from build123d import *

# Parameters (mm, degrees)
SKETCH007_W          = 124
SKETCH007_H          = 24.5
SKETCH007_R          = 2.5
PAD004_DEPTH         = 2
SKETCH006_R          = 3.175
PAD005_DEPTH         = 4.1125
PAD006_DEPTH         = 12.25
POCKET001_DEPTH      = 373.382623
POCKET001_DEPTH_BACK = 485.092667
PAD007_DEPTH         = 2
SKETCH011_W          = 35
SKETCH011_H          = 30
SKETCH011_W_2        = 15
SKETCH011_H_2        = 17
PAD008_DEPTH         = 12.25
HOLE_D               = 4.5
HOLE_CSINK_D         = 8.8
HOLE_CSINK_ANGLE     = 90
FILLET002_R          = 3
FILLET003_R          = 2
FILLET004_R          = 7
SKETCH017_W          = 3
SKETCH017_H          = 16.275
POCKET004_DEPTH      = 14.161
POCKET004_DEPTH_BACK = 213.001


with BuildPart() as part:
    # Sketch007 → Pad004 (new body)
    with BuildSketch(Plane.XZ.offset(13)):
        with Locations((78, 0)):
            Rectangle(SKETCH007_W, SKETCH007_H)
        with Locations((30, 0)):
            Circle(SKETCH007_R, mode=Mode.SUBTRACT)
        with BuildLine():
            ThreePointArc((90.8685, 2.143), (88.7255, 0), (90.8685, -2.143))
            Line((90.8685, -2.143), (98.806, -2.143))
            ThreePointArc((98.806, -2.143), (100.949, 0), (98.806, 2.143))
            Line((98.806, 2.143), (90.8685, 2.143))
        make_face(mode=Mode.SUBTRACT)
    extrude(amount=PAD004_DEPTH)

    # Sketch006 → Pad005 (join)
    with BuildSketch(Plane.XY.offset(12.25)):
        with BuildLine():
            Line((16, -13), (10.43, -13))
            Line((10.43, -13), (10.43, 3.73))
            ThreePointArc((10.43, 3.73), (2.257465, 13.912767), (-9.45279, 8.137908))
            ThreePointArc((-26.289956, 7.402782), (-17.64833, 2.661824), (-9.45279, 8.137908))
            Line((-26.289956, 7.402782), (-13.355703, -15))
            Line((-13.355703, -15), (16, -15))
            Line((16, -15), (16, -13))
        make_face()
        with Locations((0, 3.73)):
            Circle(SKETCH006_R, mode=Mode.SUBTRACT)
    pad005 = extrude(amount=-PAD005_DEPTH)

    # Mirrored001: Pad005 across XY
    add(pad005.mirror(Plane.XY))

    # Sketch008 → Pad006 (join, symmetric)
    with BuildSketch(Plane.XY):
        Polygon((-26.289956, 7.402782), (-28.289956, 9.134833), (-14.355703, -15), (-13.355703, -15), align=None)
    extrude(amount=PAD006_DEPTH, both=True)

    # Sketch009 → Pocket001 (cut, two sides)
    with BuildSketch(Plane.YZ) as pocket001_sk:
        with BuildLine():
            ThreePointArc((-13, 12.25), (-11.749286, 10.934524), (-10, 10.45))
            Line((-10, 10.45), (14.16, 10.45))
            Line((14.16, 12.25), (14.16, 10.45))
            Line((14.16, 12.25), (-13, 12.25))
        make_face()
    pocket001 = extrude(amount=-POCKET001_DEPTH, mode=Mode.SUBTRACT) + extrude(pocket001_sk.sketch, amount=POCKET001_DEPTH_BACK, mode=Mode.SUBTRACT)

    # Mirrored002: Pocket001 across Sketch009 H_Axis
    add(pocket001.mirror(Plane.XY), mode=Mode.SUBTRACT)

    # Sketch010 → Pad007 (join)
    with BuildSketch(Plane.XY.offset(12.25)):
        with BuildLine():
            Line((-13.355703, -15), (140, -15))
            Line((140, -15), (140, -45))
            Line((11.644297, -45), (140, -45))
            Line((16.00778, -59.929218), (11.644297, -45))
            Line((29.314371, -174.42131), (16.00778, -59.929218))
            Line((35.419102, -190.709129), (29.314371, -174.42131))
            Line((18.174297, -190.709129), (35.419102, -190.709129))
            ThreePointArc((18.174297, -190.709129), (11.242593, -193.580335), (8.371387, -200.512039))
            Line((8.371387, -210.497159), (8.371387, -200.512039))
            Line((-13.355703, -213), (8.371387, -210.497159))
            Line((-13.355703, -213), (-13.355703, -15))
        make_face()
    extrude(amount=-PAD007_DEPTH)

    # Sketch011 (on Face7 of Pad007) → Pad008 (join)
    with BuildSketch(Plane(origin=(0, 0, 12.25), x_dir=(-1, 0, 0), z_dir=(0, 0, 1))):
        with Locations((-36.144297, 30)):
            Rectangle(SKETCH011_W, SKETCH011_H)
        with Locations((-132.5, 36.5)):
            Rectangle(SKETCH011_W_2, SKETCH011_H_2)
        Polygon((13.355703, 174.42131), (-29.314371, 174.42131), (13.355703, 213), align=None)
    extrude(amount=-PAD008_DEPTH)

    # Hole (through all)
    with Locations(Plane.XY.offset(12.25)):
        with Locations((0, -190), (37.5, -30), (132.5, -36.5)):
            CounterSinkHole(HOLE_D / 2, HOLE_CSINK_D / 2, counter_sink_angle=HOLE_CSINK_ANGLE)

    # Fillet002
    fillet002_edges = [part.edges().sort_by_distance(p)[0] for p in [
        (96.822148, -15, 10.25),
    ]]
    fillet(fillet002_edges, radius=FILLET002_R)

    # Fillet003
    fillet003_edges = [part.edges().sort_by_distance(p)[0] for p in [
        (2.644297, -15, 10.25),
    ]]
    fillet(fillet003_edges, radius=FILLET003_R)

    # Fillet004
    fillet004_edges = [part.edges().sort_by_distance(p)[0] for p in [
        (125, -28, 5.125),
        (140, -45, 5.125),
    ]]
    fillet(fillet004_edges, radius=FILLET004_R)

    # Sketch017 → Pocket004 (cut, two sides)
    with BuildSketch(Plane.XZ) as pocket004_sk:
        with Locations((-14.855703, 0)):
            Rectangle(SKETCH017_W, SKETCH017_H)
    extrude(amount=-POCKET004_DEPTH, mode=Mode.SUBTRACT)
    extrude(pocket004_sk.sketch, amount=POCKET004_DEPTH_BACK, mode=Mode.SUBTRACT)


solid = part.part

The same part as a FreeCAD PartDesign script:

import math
import FreeCAD as App
import Part
import Sketcher
from FreeCAD import Vector
Q = App.Units.Quantity


def edges_at(feature, points):
    """Names of the edges that pass closest to the given points."""
    edges = feature.Shape.Edges
    near = lambda p: min(range(len(edges)), key=lambda i: edges[i].distToShape(Part.Vertex(*p))[0])
    return sorted({f"Edge{near(p) + 1}" for p in points})

doc = App.newDocument("Part")
body = doc.addObject("PartDesign::Body", "Body")

# Sketch on XZ plane
sketch1 = body.newObject("Sketcher::SketchObject", "Sketch")
sketch1.AttachmentSupport = (doc.getObject("XZ_Plane"), [""])
sketch1.MapMode = "FlatFace"
sketch1.AttachmentOffset = App.Placement(Vector(0, 0, 13), App.Rotation())
sketch1.addGeometry(Part.LineSegment(Vector(16, 12.2, 0), Vector(16, -12.2, 0)), False)
sketch1.addGeometry(Part.LineSegment(Vector(16, -12.2, 0), Vector(140, -12.2, 0)), False)
sketch1.addGeometry(Part.LineSegment(Vector(140, -12.2, 0), Vector(140, 12.2, 0)), False)
sketch1.addGeometry(Part.LineSegment(Vector(140, 12.2, 0), Vector(16, 12.2, 0)), False)
sketch1.addGeometry(Part.Circle(Vector(30, 0, 0), Vector(0, 0, 1), 2.5), False)
sketch1.addGeometry(Part.ArcOfCircle(Part.Circle(Vector(90.9, 0, 0), Vector(0, 0, 1), 2.1), math.radians(90), math.radians(270)), False)
sketch1.addGeometry(Part.LineSegment(Vector(90.9, 2.1, 0), Vector(98.8, 2.1, 0)), False)
sketch1.addGeometry(Part.ArcOfCircle(Part.Circle(Vector(98.8, 0, 0), Vector(0, 0, 1), 2.1), math.radians(-90), math.radians(90)), False)
sketch1.addGeometry(Part.LineSegment(Vector(98.8, -2.1, 0), Vector(90.9, -2.1, 0)), False)
sketch1.addConstraint(Sketcher.Constraint("Coincident", 0, 2, 1, 1))
sketch1.addConstraint(Sketcher.Constraint("Coincident", 1, 2, 2, 1))
sketch1.addConstraint(Sketcher.Constraint("Coincident", 2, 2, 3, 1))
sketch1.addConstraint(Sketcher.Constraint("Coincident", 3, 2, 0, 1))
sketch1.addConstraint(Sketcher.Constraint("Tangent", 5, 1, 6, 1))
sketch1.addConstraint(Sketcher.Constraint("Tangent", 6, 2, 7, 2))
sketch1.addConstraint(Sketcher.Constraint("Tangent", 7, 1, 8, 1))
sketch1.addConstraint(Sketcher.Constraint("Tangent", 8, 2, 5, 2))
sketch1.addConstraint(Sketcher.Constraint("Vertical", 0))
sketch1.addConstraint(Sketcher.Constraint("Horizontal", 1))
sketch1.addConstraint(Sketcher.Constraint("Vertical", 2))
sketch1.addConstraint(Sketcher.Constraint("Horizontal", 3))
sketch1.addConstraint(Sketcher.Constraint("Horizontal", 6))
sketch1.addConstraint(Sketcher.Constraint("Horizontal", 8))
sketch1.addConstraint(Sketcher.Constraint("PointOnObject", 4, 3, -1))
sketch1.addConstraint(Sketcher.Constraint("PointOnObject", 5, 3, -1))
sketch1.addConstraint(Sketcher.Constraint("Diameter", 4, Q("5 mm")))
sketch1.addConstraint(Sketcher.Constraint("DistanceX", 1, 1, 1, 2, Q("124 mm")))
sketch1.addConstraint(Sketcher.Constraint("DistanceY", 0, 2, 0, 1, Q("24.5 mm")))
sketch1.addConstraint(Sketcher.Constraint("DistanceX", -1, 1, 4, 3, Q("30 mm")))
sketch1.addConstraint(Sketcher.Constraint("DistanceX", -1, 1, 0, 2, Q("16 mm")))
sketch1.addConstraint(Sketcher.Constraint("Radius", 5, Q("2.143 mm")))
sketch1.addConstraint(Sketcher.Constraint("DistanceY", 0, 2, -1, 1, Q("12.25 mm")))
sketch1.addConstraint(Sketcher.Constraint("DistanceX", 6, 1, 6, 2, Q("7.9375 mm")))
sketch1.addConstraint(Sketcher.Constraint("DistanceX", -1, 1, 7, 3, Q("98.806 mm")))
pad1 = body.newObject("PartDesign::Pad", "Pad")
pad1.Profile = sketch1
pad1.Length = 2

# Sketch on XY plane
sketch2 = body.newObject("Sketcher::SketchObject", "Sketch001")
sketch2.AttachmentSupport = (doc.getObject("XY_Plane"), [""])
sketch2.MapMode = "FlatFace"
sketch2.AttachmentOffset = App.Placement(Vector(0, 0, 12.25), App.Rotation())
sketch2.addGeometry(Part.LineSegment(Vector(16, -13, 0), Vector(10.4, -13, 0)), False)
sketch2.addGeometry(Part.LineSegment(Vector(10.4, -13, 0), Vector(10.4, 3.7, 0)), False)
sketch2.addGeometry(Part.ArcOfCircle(Part.Circle(Vector(0, 3.7, 0), Vector(0, 0, 1), 10.4), math.radians(0), math.radians(155)), False)
sketch2.addGeometry(Part.ArcOfCircle(Part.Circle(Vector(-18.1, 12.2, 0), Vector(0, 0, 1), 9.5), math.radians(-150), math.radians(-25)), False)
sketch2.addGeometry(Part.LineSegment(Vector(-26.3, 7.4, 0), Vector(-13.4, -15, 0)), False)
sketch2.addGeometry(Part.LineSegment(Vector(-13.4, -15, 0), Vector(16, -15, 0)), False)
sketch2.addGeometry(Part.LineSegment(Vector(16, -15, 0), Vector(16, -13, 0)), False)
sketch2.addGeometry(Part.Circle(Vector(0, 3.7, 0), Vector(0, 0, 1), 3.2), False)
sketch2.addConstraint(Sketcher.Constraint("Coincident", 0, 2, 1, 1))
sketch2.addConstraint(Sketcher.Constraint("Tangent", 1, 2, 2, 1))
sketch2.addConstraint(Sketcher.Constraint("Tangent", 2, 2, 3, 2))
sketch2.addConstraint(Sketcher.Constraint("Tangent", 3, 1, 4, 1))
sketch2.addConstraint(Sketcher.Constraint("Coincident", 4, 2, 5, 1))
sketch2.addConstraint(Sketcher.Constraint("Coincident", 5, 2, 6, 1))
sketch2.addConstraint(Sketcher.Constraint("Coincident", 6, 2, 0, 1))
sketch2.addConstraint(Sketcher.Constraint("Horizontal", 0))
sketch2.addConstraint(Sketcher.Constraint("Vertical", 1))
sketch2.addConstraint(Sketcher.Constraint("Horizontal", 5))
sketch2.addConstraint(Sketcher.Constraint("Vertical", 6))
sketch2.addConstraint(Sketcher.Constraint("Coincident", 7, 3, 2, 3))
sketch2.addConstraint(Sketcher.Constraint("PointOnObject", 2, 3, -2))
sketch2.addConstraint(Sketcher.Constraint("Radius", 3, Q("9.500001 mm")))
sketch2.addConstraint(Sketcher.Constraint("Diameter", 7, Q("6.35 mm")))
sketch2.addConstraint(Sketcher.Constraint("DistanceY", 6, 1, 6, 2, Q("2 mm")))
sketch2.addConstraint(Sketcher.Constraint("Angle", 4, Q("-59.999999 deg")))
sketch2.addConstraint(Sketcher.Constraint("Radius", 2, Q("10.43 mm")))
sketch2.addConstraint(Sketcher.Constraint("DistanceY", 0, 2, -1, 1, Q("13 mm")))
sketch2.addConstraint(Sketcher.Constraint("DistanceX", -1, 1, 5, 2, Q("16 mm")))
sketch2.addConstraint(Sketcher.Constraint("DistanceY", 1, 1, 1, 2, Q("16.73 mm")))
sketch2.addConstraint(Sketcher.Constraint("DistanceX", 5, 1, 5, 2, Q("29.355703 mm")))
pad2 = body.newObject("PartDesign::Pad", "Pad001")
pad2.Profile = sketch2
pad2.Length = 4.1125
pad2.Reversed = True
doc.recompute()

mirrored = body.newObject("PartDesign::Mirrored", "Mirrored")
mirrored.Originals = [pad2]
mirrored.MirrorPlane = (doc.getObject("XY_Plane"), [""])
body.Tip = mirrored

# Sketch on XY plane
sketch3 = body.newObject("Sketcher::SketchObject", "Sketch002")
sketch3.AttachmentSupport = (doc.getObject("XY_Plane"), [""])
sketch3.MapMode = "FlatFace"
sketch3.addGeometry(Part.LineSegment(Vector(-26.3, 7.4, 0), Vector(-28.3, 9.1, 0)), False)
sketch3.addGeometry(Part.LineSegment(Vector(-28.3, 9.1, 0), Vector(-14.4, -15, 0)), False)
sketch3.addGeometry(Part.LineSegment(Vector(-14.4, -15, 0), Vector(-13.4, -15, 0)), False)
sketch3.addGeometry(Part.LineSegment(Vector(-13.4, -15, 0), Vector(-26.3, 7.4, 0)), False)
sketch3.addConstraint(Sketcher.Constraint("Coincident", 0, 2, 1, 1))
sketch3.addConstraint(Sketcher.Constraint("Coincident", 1, 2, 2, 1))
sketch3.addConstraint(Sketcher.Constraint("Coincident", 2, 2, 3, 1))
sketch3.addConstraint(Sketcher.Constraint("Coincident", 3, 2, 0, 1))
sketch3.addConstraint(Sketcher.Constraint("Horizontal", 2))
sketch3.addConstraint(Sketcher.Constraint("Parallel", 1, 3))
sketch3.addConstraint(Sketcher.Constraint("DistanceX", 2, 1, 2, 2, Q("1 mm")))
sketch3.addConstraint(Sketcher.Constraint("Angle", 1, Q("-59.999999 deg")))
sketch3.addConstraint(Sketcher.Constraint("DistanceY", 1, 2, -1, 1, Q("15 mm")))
sketch3.addConstraint(Sketcher.Constraint("DistanceX", 0, 2, 3, 2, Q("2 mm")))
sketch3.addConstraint(Sketcher.Constraint("Distance", 1, Q("27.868505 mm")))
sketch3.addConstraint(Sketcher.Constraint("DistanceX", 0, 2, -1, 1, Q("28.289956 mm")))
pad3 = body.newObject("PartDesign::Pad", "Pad002")
pad3.Profile = sketch3
pad3.Length = 24.5
pad3.Midplane = True

# Sketch on YZ plane
sketch4 = body.newObject("Sketcher::SketchObject", "Sketch003")
sketch4.AttachmentSupport = (doc.getObject("YZ_Plane"), [""])
sketch4.MapMode = "FlatFace"
sketch4.addGeometry(Part.ArcOfCircle(Part.Circle(Vector(-10, 13.8, 0), Vector(0, 0, 1), 3.4), math.radians(-152), math.radians(-90)), False)
sketch4.addGeometry(Part.LineSegment(Vector(-10, 10.4, 0), Vector(14.2, 10.4, 0)), False)
sketch4.addGeometry(Part.LineSegment(Vector(14.2, 10.4, 0), Vector(14.2, 12.2, 0)), False)
sketch4.addGeometry(Part.LineSegment(Vector(14.2, 12.2, 0), Vector(-13, 12.2, 0)), False)
sketch4.addConstraint(Sketcher.Constraint("Tangent", 0, 2, 1, 1))
sketch4.addConstraint(Sketcher.Constraint("Coincident", 1, 2, 2, 1))
sketch4.addConstraint(Sketcher.Constraint("Coincident", 2, 2, 3, 1))
sketch4.addConstraint(Sketcher.Constraint("Coincident", 3, 2, 0, 1))
sketch4.addConstraint(Sketcher.Constraint("Horizontal", 1))
sketch4.addConstraint(Sketcher.Constraint("Vertical", 2))
sketch4.addConstraint(Sketcher.Constraint("Horizontal", 3))
sketch4.addConstraint(Sketcher.Constraint("Radius", 0, Q("3.399998 mm")))
sketch4.addConstraint(Sketcher.Constraint("DistanceY", 2, 1, 2, 2, Q("1.8 mm")))
sketch4.addConstraint(Sketcher.Constraint("DistanceX", 0, 3, -1, 1, Q("10.000001 mm")))
sketch4.addConstraint(Sketcher.Constraint("DistanceX", 1, 1, 1, 2, Q("24.16 mm")))
sketch4.addConstraint(Sketcher.Constraint("DistanceY", -1, 1, 0, 3, Q("13.849998 mm")))
pocket1 = body.newObject("PartDesign::Pocket", "Pocket")
pocket1.Profile = sketch4
pocket1.Type = "ThroughAll"
pocket1.Midplane = True
doc.recompute()

mirrored2 = body.newObject("PartDesign::Mirrored", "Mirrored001")
mirrored2.Originals = [pocket1]
mirrored2.MirrorPlane = (doc.getObject("XY_Plane"), [""])
body.Tip = mirrored2

# Sketch on XY plane
sketch5 = body.newObject("Sketcher::SketchObject", "Sketch004")
sketch5.AttachmentSupport = (doc.getObject("XY_Plane"), [""])
sketch5.MapMode = "FlatFace"
sketch5.AttachmentOffset = App.Placement(Vector(0, 0, 12.25), App.Rotation())
sketch5.addGeometry(Part.LineSegment(Vector(140, -15, 0), Vector(-13, -15, 0)), False)
sketch5.addGeometry(Part.LineSegment(Vector(-13, -15, 0), Vector(-13, -213, 0)), False)
sketch5.addGeometry(Part.LineSegment(Vector(-13, -213, 0), Vector(8, -210, 0)), False)
sketch5.addGeometry(Part.LineSegment(Vector(8, -210, 0), Vector(8, -201, 0)), False)
sketch5.addGeometry(Part.ArcOfCircle(Part.Circle(Vector(18, -201, 0), Vector(0, 0, 1), 10), math.radians(90), math.radians(180)), False)
sketch5.addGeometry(Part.LineSegment(Vector(18, -191, 0), Vector(35, -191, 0)), False)
sketch5.addGeometry(Part.LineSegment(Vector(35, -191, 0), Vector(29, -174, 0)), False)
sketch5.addGeometry(Part.LineSegment(Vector(29, -174, 0), Vector(16, -60, 0)), False)
sketch5.addGeometry(Part.LineSegment(Vector(16, -60, 0), Vector(12, -45, 0)), False)
sketch5.addGeometry(Part.LineSegment(Vector(12, -45, 0), Vector(140, -45, 0)), False)
sketch5.addGeometry(Part.LineSegment(Vector(140, -45, 0), Vector(140, -15, 0)), False)
sketch5.addConstraint(Sketcher.Constraint("Coincident", 0, 2, 1, 1))
sketch5.addConstraint(Sketcher.Constraint("Coincident", 1, 2, 2, 1))
sketch5.addConstraint(Sketcher.Constraint("Coincident", 2, 2, 3, 1))
sketch5.addConstraint(Sketcher.Constraint("Tangent", 3, 2, 4, 2))
sketch5.addConstraint(Sketcher.Constraint("Tangent", 4, 1, 5, 1))
sketch5.addConstraint(Sketcher.Constraint("Coincident", 5, 2, 6, 1))
sketch5.addConstraint(Sketcher.Constraint("Coincident", 6, 2, 7, 1))
sketch5.addConstraint(Sketcher.Constraint("Coincident", 7, 2, 8, 1))
sketch5.addConstraint(Sketcher.Constraint("Coincident", 8, 2, 9, 1))
sketch5.addConstraint(Sketcher.Constraint("Coincident", 9, 2, 10, 1))
sketch5.addConstraint(Sketcher.Constraint("Coincident", 10, 2, 0, 1))
sketch5.addConstraint(Sketcher.Constraint("Horizontal", 0))
sketch5.addConstraint(Sketcher.Constraint("Vertical", 1))
sketch5.addConstraint(Sketcher.Constraint("Vertical", 3))
sketch5.addConstraint(Sketcher.Constraint("Horizontal", 5))
sketch5.addConstraint(Sketcher.Constraint("Horizontal", 9))
sketch5.addConstraint(Sketcher.Constraint("Vertical", 10))
sketch5.addConstraint(Sketcher.Constraint("DistanceY", 1, 2, 1, 1, Q("198 mm")))
sketch5.addConstraint(Sketcher.Constraint("DistanceY", 10, 1, 10, 2, Q("30 mm")))
sketch5.addConstraint(Sketcher.Constraint("DistanceY", 0, 2, -1, 1, Q("15 mm")))
sketch5.addConstraint(Sketcher.Constraint("DistanceX", -1, 1, 9, 2, Q("140 mm")))
sketch5.addConstraint(Sketcher.Constraint("DistanceX", 0, 2, 8, 2, Q("25 mm")))
sketch5.addConstraint(Sketcher.Constraint("Radius", 4, Q("9.80291 mm")))
sketch5.addConstraint(Sketcher.Constraint("DistanceX", 0, 2, 4, 3, Q("31.53 mm")))
sketch5.addConstraint(Sketcher.Constraint("DistanceY", 3, 1, 3, 2, Q("9.98512 mm")))
sketch5.addConstraint(Sketcher.Constraint("Distance", 2, Q("21.870772 mm")))
sketch5.addConstraint(Sketcher.Constraint("DistanceX", 0, 2, 0, 1, Q("153.355703 mm")))
sketch5.addConstraint(Sketcher.Constraint("DistanceX", 5, 1, 5, 2, Q("17.244805 mm")))
sketch5.addConstraint(Sketcher.Constraint("DistanceX", -1, 1, 6, 2, Q("29.314371 mm")))
sketch5.addConstraint(Sketcher.Constraint("DistanceY", 6, 2, -1, 1, Q("174.42131 mm")))
sketch5.addConstraint(Sketcher.Constraint("DistanceX", -1, 1, 7, 2, Q("16.00778 mm")))
sketch5.addConstraint(Sketcher.Constraint("DistanceY", 4, 1, 7, 2, Q("130.779911 mm")))
pad4 = body.newObject("PartDesign::Pad", "Pad003")
pad4.Profile = sketch5
pad4.Length = 2
pad4.Reversed = True

# Sketch on XY plane
sketch6 = body.newObject("Sketcher::SketchObject", "Sketch005")
sketch6.AttachmentSupport = (doc.getObject("XY_Plane"), [""])
sketch6.MapMode = "FlatFace"
sketch6.AttachmentOffset = App.Placement(Vector(0, 0, 12.25), App.Rotation())
sketch6.addGeometry(Part.LineSegment(Vector(54, -45, 0), Vector(54, -15, 0)), False)
sketch6.addGeometry(Part.LineSegment(Vector(54, -15, 0), Vector(19, -15, 0)), False)
sketch6.addGeometry(Part.LineSegment(Vector(19, -15, 0), Vector(19, -45, 0)), False)
sketch6.addGeometry(Part.LineSegment(Vector(19, -45, 0), Vector(54, -45, 0)), False)
sketch6.addGeometry(Part.LineSegment(Vector(140, -45, 0), Vector(140, -28, 0)), False)
sketch6.addGeometry(Part.LineSegment(Vector(140, -28, 0), Vector(125, -28, 0)), False)
sketch6.addGeometry(Part.LineSegment(Vector(125, -28, 0), Vector(125, -45, 0)), False)
sketch6.addGeometry(Part.LineSegment(Vector(125, -45, 0), Vector(140, -45, 0)), False)
sketch6.addGeometry(Part.LineSegment(Vector(29, -174, 0), Vector(-13, -174, 0)), False)
sketch6.addGeometry(Part.LineSegment(Vector(-13, -174, 0), Vector(-13, -213, 0)), False)
sketch6.addGeometry(Part.LineSegment(Vector(-13, -213, 0), Vector(29, -174, 0)), False)
sketch6.addConstraint(Sketcher.Constraint("Coincident", 0, 2, 1, 1))
sketch6.addConstraint(Sketcher.Constraint("Coincident", 1, 2, 2, 1))
sketch6.addConstraint(Sketcher.Constraint("Coincident", 2, 2, 3, 1))
sketch6.addConstraint(Sketcher.Constraint("Coincident", 3, 2, 0, 1))
sketch6.addConstraint(Sketcher.Constraint("Coincident", 4, 2, 5, 1))
sketch6.addConstraint(Sketcher.Constraint("Coincident", 5, 2, 6, 1))
sketch6.addConstraint(Sketcher.Constraint("Coincident", 6, 2, 7, 1))
sketch6.addConstraint(Sketcher.Constraint("Coincident", 7, 2, 4, 1))
sketch6.addConstraint(Sketcher.Constraint("Coincident", 8, 2, 9, 1))
sketch6.addConstraint(Sketcher.Constraint("Coincident", 9, 2, 10, 1))
sketch6.addConstraint(Sketcher.Constraint("Coincident", 10, 2, 8, 1))
sketch6.addConstraint(Sketcher.Constraint("Vertical", 0))
sketch6.addConstraint(Sketcher.Constraint("Horizontal", 1))
sketch6.addConstraint(Sketcher.Constraint("Vertical", 2))
sketch6.addConstraint(Sketcher.Constraint("Horizontal", 3))
sketch6.addConstraint(Sketcher.Constraint("Vertical", 4))
sketch6.addConstraint(Sketcher.Constraint("Horizontal", 5))
sketch6.addConstraint(Sketcher.Constraint("Vertical", 6))
sketch6.addConstraint(Sketcher.Constraint("Horizontal", 7))
sketch6.addConstraint(Sketcher.Constraint("Horizontal", 8))
sketch6.addConstraint(Sketcher.Constraint("Vertical", 9))
sketch6.addConstraint(Sketcher.Constraint("Horizontal", 3, 2, 6, 2))
sketch6.addConstraint(Sketcher.Constraint("DistanceX", 1, 2, 1, 1, Q("35 mm")))
sketch6.addConstraint(Sketcher.Constraint("DistanceX", 5, 2, 5, 1, Q("15 mm")))
sketch6.addConstraint(Sketcher.Constraint("DistanceY", 0, 1, 0, 2, Q("30 mm")))
sketch6.addConstraint(Sketcher.Constraint("DistanceY", 4, 1, 4, 2, Q("17 mm")))
sketch6.addConstraint(Sketcher.Constraint("DistanceY", 0, 2, -1, 1, Q("15 mm")))
sketch6.addConstraint(Sketcher.Constraint("DistanceX", -1, 1, 4, 2, Q("140 mm")))
sketch6.addConstraint(Sketcher.Constraint("DistanceY", 9, 2, -1, 1, Q("213 mm")))
sketch6.addConstraint(Sketcher.Constraint("DistanceX", 8, 2, 2, 2, Q("32 mm")))
sketch6.addConstraint(Sketcher.Constraint("DistanceY", 9, 2, 9, 1, Q("38.57869 mm")))
sketch6.addConstraint(Sketcher.Constraint("DistanceX", 8, 2, 8, 1, Q("42.670074 mm")))
sketch6.addConstraint(Sketcher.Constraint("DistanceX", -1, 1, 10, 2, Q("29.314371 mm")))
pad5 = body.newObject("PartDesign::Pad", "Pad004")
pad5.Profile = sketch6
pad5.Length = 12.25
pad5.Reversed = True

# Sketch on XY plane
sketch7 = body.newObject("Sketcher::SketchObject", "Sketch006")
sketch7.AttachmentSupport = (doc.getObject("XY_Plane"), [""])
sketch7.MapMode = "FlatFace"
sketch7.AttachmentOffset = App.Placement(Vector(0, 0, 12.25), App.Rotation())
sketch7.addGeometry(Part.Circle(Vector(0, -190, 0), Vector(0, 0, 1), 2.2), False)
sketch7.addGeometry(Part.Circle(Vector(37.5, -30, 0), Vector(0, 0, 1), 2.2), False)
sketch7.addGeometry(Part.Circle(Vector(132.5, -36.5, 0), Vector(0, 0, 1), 2.2), False)
sketch7.addConstraint(Sketcher.Constraint("Equal", 0, 1))
sketch7.addConstraint(Sketcher.Constraint("Equal", 1, 2))
sketch7.addConstraint(Sketcher.Constraint("PointOnObject", 0, 3, -2))
sketch7.addConstraint(Sketcher.Constraint("Diameter", 0, Q("4.5 mm")))
sketch7.addConstraint(Sketcher.Constraint("DistanceY", 0, 3, -1, 1, Q("190 mm")))
sketch7.addConstraint(Sketcher.Constraint("DistanceY", 1, 3, -1, 1, Q("30 mm")))
sketch7.addConstraint(Sketcher.Constraint("DistanceX", 1, 3, 2, 3, Q("95 mm")))
sketch7.addConstraint(Sketcher.Constraint("DistanceX", -1, 1, 1, 3, Q("37.5 mm")))
sketch7.addConstraint(Sketcher.Constraint("DistanceY", 2, 3, -1, 1, Q("36.5 mm")))
doc.recompute()
hole = body.newObject("PartDesign::Hole", "Hole")
hole.Profile = sketch7
hole.ThreadType = "None"
hole.Diameter = 4.5
hole.DepthType = "ThroughAll"
hole.HoleCutType = "Countersink"
hole.HoleCutDiameter = 8.8
hole.HoleCutCountersinkAngle = 90
doc.recompute()

fillet = body.newObject("PartDesign::Fillet", "Fillet")
fillet.Base = (hole, edges_at(hole, [(96.822, -15, 10.25)]))
fillet.Radius = 3
doc.recompute()

fillet2 = body.newObject("PartDesign::Fillet", "Fillet001")
fillet2.Base = (fillet, edges_at(fillet, [(2.644, -15, 10.25)]))
fillet2.Radius = 2
doc.recompute()

fillet3 = body.newObject("PartDesign::Fillet", "Fillet002")
fillet3.Base = (fillet2, edges_at(fillet2, [(125, -28, 5.125), (140, -45, 6.125)]))
fillet3.Radius = 7

# Sketch on XZ plane
sketch8 = body.newObject("Sketcher::SketchObject", "Sketch007")
sketch8.AttachmentSupport = (doc.getObject("XZ_Plane"), [""])
sketch8.MapMode = "FlatFace"
sketch8.addGeometry(Part.LineSegment(Vector(-16.4, 8.1, 0), Vector(-16.4, -8.1, 0)), False)
sketch8.addGeometry(Part.LineSegment(Vector(-16.4, -8.1, 0), Vector(-13.4, -8.1, 0)), False)
sketch8.addGeometry(Part.LineSegment(Vector(-13.4, -8.1, 0), Vector(-13.4, 8.1, 0)), False)
sketch8.addGeometry(Part.LineSegment(Vector(-13.4, 8.1, 0), Vector(-16.4, 8.1, 0)), False)
sketch8.addConstraint(Sketcher.Constraint("Coincident", 0, 2, 1, 1))
sketch8.addConstraint(Sketcher.Constraint("Coincident", 1, 2, 2, 1))
sketch8.addConstraint(Sketcher.Constraint("Coincident", 2, 2, 3, 1))
sketch8.addConstraint(Sketcher.Constraint("Coincident", 3, 2, 0, 1))
sketch8.addConstraint(Sketcher.Constraint("Vertical", 0))
sketch8.addConstraint(Sketcher.Constraint("Horizontal", 1))
sketch8.addConstraint(Sketcher.Constraint("Vertical", 2))
sketch8.addConstraint(Sketcher.Constraint("Horizontal", 3))
sketch8.addConstraint(Sketcher.Constraint("DistanceX", 1, 1, 1, 2, Q("3 mm")))
sketch8.addConstraint(Sketcher.Constraint("DistanceY", 0, 2, 0, 1, Q("16.275 mm")))
sketch8.addConstraint(Sketcher.Constraint("DistanceY", 0, 2, -1, 1, Q("8.1375 mm")))
sketch8.addConstraint(Sketcher.Constraint("DistanceX", 0, 2, -1, 1, Q("16.355703 mm")))
pocket2 = body.newObject("PartDesign::Pocket", "Pocket001")
pocket2.Profile = sketch8
pocket2.Type = "ThroughAll"
pocket2.Midplane = True

doc.recompute()
